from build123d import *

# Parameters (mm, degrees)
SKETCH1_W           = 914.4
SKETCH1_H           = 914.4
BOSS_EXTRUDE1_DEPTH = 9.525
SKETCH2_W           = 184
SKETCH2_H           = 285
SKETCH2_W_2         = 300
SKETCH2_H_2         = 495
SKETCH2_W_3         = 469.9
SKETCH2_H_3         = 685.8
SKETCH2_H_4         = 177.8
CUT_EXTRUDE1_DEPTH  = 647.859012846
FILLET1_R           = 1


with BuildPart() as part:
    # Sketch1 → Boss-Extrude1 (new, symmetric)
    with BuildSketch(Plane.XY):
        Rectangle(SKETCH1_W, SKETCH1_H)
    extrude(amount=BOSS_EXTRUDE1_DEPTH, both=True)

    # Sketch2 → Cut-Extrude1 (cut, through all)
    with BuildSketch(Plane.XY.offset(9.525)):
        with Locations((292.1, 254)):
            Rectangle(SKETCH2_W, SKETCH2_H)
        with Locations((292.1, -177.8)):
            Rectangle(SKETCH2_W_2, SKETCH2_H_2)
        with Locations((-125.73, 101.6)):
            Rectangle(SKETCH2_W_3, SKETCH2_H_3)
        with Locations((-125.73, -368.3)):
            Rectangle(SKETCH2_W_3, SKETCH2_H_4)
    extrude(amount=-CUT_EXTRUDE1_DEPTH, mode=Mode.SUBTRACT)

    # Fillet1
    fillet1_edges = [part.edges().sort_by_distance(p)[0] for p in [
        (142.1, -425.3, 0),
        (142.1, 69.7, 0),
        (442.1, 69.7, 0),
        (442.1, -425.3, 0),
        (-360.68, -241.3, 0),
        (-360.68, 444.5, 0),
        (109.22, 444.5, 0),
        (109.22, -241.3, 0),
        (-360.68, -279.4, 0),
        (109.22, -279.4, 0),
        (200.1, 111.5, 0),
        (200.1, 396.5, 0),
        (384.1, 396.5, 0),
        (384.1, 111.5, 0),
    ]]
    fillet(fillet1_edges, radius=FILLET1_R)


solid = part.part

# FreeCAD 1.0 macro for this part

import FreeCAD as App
import Part
import Sketcher
from FreeCAD import Vector
Q = App.Units.Quantity


def edges_at(feature, points):
    """Names of the edges that pass closest to the given points."""
    edges = feature.Shape.Edges
    near = lambda p: min(range(len(edges)), key=lambda i: edges[i].distToShape(Part.Vertex(*p))[0])
    return sorted({f"Edge{near(p) + 1}" for p in points})


def add_polygon(sketch, points):
    """Adds a closed chain of lines whose ends are joined by coincident constraints."""
    first, n = sketch.GeometryCount, len(points)
    for a, b in zip(points, points[1:] + points[:1]):
        sketch.addGeometry(Part.LineSegment(App.Vector(*a, 0), App.Vector(*b, 0)), False)
    for i in range(n):
        sketch.addConstraint(Sketcher.Constraint("Coincident", first + i, 2, first + (i + 1) % n, 1))

doc = App.newDocument("Part")
body = doc.addObject("PartDesign::Body", "Body")

sketch1 = body.newObject("Sketcher::SketchObject", "Sketch")
sketch1.AttachmentSupport = (doc.getObject("XY_Plane"), [""])
sketch1.MapMode = "FlatFace"
add_polygon(sketch1, [(-457, 457), (-457, -457), (457, -457), (457, 457)])
sketch1.addConstraint(Sketcher.Constraint("Vertical", 0))
sketch1.addConstraint(Sketcher.Constraint("Horizontal", 1))
sketch1.addConstraint(Sketcher.Constraint("Vertical", 2))
sketch1.addConstraint(Sketcher.Constraint("Horizontal", 3))
sketch1.addConstraint(Sketcher.Constraint("Symmetric", 0, 2, 2, 2, -1, 1))
sketch1.addConstraint(Sketcher.Constraint("Equal", 3, 0))
sketch1.addConstraint(Sketcher.Constraint("DistanceX", 1, 1, 1, 2, Q("914.4 mm")))
pad1 = body.newObject("PartDesign::Pad", "Pad")
pad1.Profile = sketch1
pad1.Length = 19.05
pad1.Midplane = True

sketch2 = body.newObject("Sketcher::SketchObject", "Sketch001")
sketch2.AttachmentSupport = (doc.getObject("XY_Plane"), [""])
sketch2.MapMode = "FlatFace"
sketch2.AttachmentOffset = App.Placement(Vector(0, 0, 9.525), App.Rotation())
add_polygon(sketch2, [(200, 396), (200, 112), (384, 112), (384, 396)])
add_polygon(sketch2, [(142, 70), (142, -425), (442, -425), (442, 70)])
add_polygon(sketch2, [(-361, 444), (-361, -241), (109, -241), (109, 444)])
add_polygon(sketch2, [(-361, -279), (-361, -457), (109, -457), (109, -279)])
sketch2.addConstraint(Sketcher.Constraint("Vertical", 0))
sketch2.addConstraint(Sketcher.Constraint("Horizontal", 1))
sketch2.addConstraint(Sketcher.Constraint("Vertical", 2))
sketch2.addConstraint(Sketcher.Constraint("Horizontal", 3))
sketch2.addConstraint(Sketcher.Constraint("Vertical", 4))
sketch2.addConstraint(Sketcher.Constraint("Horizontal", 5))
sketch2.addConstraint(Sketcher.Constraint("Vertical", 6))
sketch2.addConstraint(Sketcher.Constraint("Horizontal", 7))
sketch2.addConstraint(Sketcher.Constraint("Vertical", 8))
sketch2.addConstraint(Sketcher.Constraint("Horizontal", 9))
sketch2.addConstraint(Sketcher.Constraint("Vertical", 10))
sketch2.addConstraint(Sketcher.Constraint("Horizontal", 11))
sketch2.addConstraint(Sketcher.Constraint("Vertical", 12))
sketch2.addConstraint(Sketcher.Constraint("Horizontal", 13))
sketch2.addConstraint(Sketcher.Constraint("Vertical", 14))
sketch2.addConstraint(Sketcher.Constraint("Horizontal", 15))
sketch2.addConstraint(Sketcher.Constraint("Vertical", 11, 2, 12, 2))
sketch2.addConstraint(Sketcher.Constraint("Vertical", 10, 2, 13, 2))
sketch2.addConstraint(Sketcher.Constraint("DistanceX", 1, 1, 1, 2, Q("184 mm")))
sketch2.addConstraint(Sketcher.Constraint("DistanceX", 5, 1, 5, 2, Q("300 mm")))
sketch2.addConstraint(Sketcher.Constraint("DistanceY", 0, 2, 0, 1, Q("285 mm")))
sketch2.addConstraint(Sketcher.Constraint("DistanceY", 4, 2, 4, 1, Q("495 mm")))
sketch2.addConstraint(Sketcher.Constraint("DistanceX", 9, 1, 9, 2, Q("469.9 mm")))
sketch2.addConstraint(Sketcher.Constraint("DistanceY", 8, 2, 8, 1, Q("685.8 mm")))
sketch2.addConstraint(Sketcher.Constraint("DistanceY", 12, 2, 12, 1, Q("177.8 mm")))
sketch2.addConstraint(Sketcher.Constraint("DistanceX", 4, 2, 0, 2, Q("58 mm")))
sketch2.addConstraint(Sketcher.Constraint("DistanceY", 4, 2, 8, 2, Q("184 mm")))
sketch2.addConstraint(Sketcher.Constraint("DistanceY", 3, 2, 10, 2, Q("48 mm")))
sketch2.addConstraint(Sketcher.Constraint("DistanceX", -1, 1, 0, 2, Q("200.1 mm")))
sketch2.addConstraint(Sketcher.Constraint("DistanceY", -1, 1, 0, 2, Q("111.5 mm")))
sketch2.addConstraint(Sketcher.Constraint("DistanceY", 12, 2, -1, 1, Q("457.2 mm")))
sketch2.addConstraint(Sketcher.Constraint("DistanceX", 8, 2, -1, 1, Q("360.68 mm")))
pocket1 = body.newObject("PartDesign::Pocket", "Pocket")
pocket1.Profile = sketch2
pocket1.Type = "ThroughAll"
doc.recompute()

fillet = body.newObject("PartDesign::Fillet", "Fillet")
fillet.Base = (pocket1, edges_at(pocket1, [
    (142.1, -425.3, 0),
    (142.1, 69.7, 0),
    (442.1, 69.7, 0),
    (442.1, -425.3, 0),
    (-360.68, -241.3, 0),
    (-360.68, 444.5, 0),
    (109.22, 444.5, 0),
    (109.22, -241.3, 0),
    (-360.68, -279.4, 0),
    (109.22, -279.4, 0),
    (200.1, 111.5, 0),
    (200.1, 396.5, 0),
    (384.1, 396.5, 0),
    (384.1, 111.5, 0),
]))
fillet.Radius = 1

doc.recompute()
